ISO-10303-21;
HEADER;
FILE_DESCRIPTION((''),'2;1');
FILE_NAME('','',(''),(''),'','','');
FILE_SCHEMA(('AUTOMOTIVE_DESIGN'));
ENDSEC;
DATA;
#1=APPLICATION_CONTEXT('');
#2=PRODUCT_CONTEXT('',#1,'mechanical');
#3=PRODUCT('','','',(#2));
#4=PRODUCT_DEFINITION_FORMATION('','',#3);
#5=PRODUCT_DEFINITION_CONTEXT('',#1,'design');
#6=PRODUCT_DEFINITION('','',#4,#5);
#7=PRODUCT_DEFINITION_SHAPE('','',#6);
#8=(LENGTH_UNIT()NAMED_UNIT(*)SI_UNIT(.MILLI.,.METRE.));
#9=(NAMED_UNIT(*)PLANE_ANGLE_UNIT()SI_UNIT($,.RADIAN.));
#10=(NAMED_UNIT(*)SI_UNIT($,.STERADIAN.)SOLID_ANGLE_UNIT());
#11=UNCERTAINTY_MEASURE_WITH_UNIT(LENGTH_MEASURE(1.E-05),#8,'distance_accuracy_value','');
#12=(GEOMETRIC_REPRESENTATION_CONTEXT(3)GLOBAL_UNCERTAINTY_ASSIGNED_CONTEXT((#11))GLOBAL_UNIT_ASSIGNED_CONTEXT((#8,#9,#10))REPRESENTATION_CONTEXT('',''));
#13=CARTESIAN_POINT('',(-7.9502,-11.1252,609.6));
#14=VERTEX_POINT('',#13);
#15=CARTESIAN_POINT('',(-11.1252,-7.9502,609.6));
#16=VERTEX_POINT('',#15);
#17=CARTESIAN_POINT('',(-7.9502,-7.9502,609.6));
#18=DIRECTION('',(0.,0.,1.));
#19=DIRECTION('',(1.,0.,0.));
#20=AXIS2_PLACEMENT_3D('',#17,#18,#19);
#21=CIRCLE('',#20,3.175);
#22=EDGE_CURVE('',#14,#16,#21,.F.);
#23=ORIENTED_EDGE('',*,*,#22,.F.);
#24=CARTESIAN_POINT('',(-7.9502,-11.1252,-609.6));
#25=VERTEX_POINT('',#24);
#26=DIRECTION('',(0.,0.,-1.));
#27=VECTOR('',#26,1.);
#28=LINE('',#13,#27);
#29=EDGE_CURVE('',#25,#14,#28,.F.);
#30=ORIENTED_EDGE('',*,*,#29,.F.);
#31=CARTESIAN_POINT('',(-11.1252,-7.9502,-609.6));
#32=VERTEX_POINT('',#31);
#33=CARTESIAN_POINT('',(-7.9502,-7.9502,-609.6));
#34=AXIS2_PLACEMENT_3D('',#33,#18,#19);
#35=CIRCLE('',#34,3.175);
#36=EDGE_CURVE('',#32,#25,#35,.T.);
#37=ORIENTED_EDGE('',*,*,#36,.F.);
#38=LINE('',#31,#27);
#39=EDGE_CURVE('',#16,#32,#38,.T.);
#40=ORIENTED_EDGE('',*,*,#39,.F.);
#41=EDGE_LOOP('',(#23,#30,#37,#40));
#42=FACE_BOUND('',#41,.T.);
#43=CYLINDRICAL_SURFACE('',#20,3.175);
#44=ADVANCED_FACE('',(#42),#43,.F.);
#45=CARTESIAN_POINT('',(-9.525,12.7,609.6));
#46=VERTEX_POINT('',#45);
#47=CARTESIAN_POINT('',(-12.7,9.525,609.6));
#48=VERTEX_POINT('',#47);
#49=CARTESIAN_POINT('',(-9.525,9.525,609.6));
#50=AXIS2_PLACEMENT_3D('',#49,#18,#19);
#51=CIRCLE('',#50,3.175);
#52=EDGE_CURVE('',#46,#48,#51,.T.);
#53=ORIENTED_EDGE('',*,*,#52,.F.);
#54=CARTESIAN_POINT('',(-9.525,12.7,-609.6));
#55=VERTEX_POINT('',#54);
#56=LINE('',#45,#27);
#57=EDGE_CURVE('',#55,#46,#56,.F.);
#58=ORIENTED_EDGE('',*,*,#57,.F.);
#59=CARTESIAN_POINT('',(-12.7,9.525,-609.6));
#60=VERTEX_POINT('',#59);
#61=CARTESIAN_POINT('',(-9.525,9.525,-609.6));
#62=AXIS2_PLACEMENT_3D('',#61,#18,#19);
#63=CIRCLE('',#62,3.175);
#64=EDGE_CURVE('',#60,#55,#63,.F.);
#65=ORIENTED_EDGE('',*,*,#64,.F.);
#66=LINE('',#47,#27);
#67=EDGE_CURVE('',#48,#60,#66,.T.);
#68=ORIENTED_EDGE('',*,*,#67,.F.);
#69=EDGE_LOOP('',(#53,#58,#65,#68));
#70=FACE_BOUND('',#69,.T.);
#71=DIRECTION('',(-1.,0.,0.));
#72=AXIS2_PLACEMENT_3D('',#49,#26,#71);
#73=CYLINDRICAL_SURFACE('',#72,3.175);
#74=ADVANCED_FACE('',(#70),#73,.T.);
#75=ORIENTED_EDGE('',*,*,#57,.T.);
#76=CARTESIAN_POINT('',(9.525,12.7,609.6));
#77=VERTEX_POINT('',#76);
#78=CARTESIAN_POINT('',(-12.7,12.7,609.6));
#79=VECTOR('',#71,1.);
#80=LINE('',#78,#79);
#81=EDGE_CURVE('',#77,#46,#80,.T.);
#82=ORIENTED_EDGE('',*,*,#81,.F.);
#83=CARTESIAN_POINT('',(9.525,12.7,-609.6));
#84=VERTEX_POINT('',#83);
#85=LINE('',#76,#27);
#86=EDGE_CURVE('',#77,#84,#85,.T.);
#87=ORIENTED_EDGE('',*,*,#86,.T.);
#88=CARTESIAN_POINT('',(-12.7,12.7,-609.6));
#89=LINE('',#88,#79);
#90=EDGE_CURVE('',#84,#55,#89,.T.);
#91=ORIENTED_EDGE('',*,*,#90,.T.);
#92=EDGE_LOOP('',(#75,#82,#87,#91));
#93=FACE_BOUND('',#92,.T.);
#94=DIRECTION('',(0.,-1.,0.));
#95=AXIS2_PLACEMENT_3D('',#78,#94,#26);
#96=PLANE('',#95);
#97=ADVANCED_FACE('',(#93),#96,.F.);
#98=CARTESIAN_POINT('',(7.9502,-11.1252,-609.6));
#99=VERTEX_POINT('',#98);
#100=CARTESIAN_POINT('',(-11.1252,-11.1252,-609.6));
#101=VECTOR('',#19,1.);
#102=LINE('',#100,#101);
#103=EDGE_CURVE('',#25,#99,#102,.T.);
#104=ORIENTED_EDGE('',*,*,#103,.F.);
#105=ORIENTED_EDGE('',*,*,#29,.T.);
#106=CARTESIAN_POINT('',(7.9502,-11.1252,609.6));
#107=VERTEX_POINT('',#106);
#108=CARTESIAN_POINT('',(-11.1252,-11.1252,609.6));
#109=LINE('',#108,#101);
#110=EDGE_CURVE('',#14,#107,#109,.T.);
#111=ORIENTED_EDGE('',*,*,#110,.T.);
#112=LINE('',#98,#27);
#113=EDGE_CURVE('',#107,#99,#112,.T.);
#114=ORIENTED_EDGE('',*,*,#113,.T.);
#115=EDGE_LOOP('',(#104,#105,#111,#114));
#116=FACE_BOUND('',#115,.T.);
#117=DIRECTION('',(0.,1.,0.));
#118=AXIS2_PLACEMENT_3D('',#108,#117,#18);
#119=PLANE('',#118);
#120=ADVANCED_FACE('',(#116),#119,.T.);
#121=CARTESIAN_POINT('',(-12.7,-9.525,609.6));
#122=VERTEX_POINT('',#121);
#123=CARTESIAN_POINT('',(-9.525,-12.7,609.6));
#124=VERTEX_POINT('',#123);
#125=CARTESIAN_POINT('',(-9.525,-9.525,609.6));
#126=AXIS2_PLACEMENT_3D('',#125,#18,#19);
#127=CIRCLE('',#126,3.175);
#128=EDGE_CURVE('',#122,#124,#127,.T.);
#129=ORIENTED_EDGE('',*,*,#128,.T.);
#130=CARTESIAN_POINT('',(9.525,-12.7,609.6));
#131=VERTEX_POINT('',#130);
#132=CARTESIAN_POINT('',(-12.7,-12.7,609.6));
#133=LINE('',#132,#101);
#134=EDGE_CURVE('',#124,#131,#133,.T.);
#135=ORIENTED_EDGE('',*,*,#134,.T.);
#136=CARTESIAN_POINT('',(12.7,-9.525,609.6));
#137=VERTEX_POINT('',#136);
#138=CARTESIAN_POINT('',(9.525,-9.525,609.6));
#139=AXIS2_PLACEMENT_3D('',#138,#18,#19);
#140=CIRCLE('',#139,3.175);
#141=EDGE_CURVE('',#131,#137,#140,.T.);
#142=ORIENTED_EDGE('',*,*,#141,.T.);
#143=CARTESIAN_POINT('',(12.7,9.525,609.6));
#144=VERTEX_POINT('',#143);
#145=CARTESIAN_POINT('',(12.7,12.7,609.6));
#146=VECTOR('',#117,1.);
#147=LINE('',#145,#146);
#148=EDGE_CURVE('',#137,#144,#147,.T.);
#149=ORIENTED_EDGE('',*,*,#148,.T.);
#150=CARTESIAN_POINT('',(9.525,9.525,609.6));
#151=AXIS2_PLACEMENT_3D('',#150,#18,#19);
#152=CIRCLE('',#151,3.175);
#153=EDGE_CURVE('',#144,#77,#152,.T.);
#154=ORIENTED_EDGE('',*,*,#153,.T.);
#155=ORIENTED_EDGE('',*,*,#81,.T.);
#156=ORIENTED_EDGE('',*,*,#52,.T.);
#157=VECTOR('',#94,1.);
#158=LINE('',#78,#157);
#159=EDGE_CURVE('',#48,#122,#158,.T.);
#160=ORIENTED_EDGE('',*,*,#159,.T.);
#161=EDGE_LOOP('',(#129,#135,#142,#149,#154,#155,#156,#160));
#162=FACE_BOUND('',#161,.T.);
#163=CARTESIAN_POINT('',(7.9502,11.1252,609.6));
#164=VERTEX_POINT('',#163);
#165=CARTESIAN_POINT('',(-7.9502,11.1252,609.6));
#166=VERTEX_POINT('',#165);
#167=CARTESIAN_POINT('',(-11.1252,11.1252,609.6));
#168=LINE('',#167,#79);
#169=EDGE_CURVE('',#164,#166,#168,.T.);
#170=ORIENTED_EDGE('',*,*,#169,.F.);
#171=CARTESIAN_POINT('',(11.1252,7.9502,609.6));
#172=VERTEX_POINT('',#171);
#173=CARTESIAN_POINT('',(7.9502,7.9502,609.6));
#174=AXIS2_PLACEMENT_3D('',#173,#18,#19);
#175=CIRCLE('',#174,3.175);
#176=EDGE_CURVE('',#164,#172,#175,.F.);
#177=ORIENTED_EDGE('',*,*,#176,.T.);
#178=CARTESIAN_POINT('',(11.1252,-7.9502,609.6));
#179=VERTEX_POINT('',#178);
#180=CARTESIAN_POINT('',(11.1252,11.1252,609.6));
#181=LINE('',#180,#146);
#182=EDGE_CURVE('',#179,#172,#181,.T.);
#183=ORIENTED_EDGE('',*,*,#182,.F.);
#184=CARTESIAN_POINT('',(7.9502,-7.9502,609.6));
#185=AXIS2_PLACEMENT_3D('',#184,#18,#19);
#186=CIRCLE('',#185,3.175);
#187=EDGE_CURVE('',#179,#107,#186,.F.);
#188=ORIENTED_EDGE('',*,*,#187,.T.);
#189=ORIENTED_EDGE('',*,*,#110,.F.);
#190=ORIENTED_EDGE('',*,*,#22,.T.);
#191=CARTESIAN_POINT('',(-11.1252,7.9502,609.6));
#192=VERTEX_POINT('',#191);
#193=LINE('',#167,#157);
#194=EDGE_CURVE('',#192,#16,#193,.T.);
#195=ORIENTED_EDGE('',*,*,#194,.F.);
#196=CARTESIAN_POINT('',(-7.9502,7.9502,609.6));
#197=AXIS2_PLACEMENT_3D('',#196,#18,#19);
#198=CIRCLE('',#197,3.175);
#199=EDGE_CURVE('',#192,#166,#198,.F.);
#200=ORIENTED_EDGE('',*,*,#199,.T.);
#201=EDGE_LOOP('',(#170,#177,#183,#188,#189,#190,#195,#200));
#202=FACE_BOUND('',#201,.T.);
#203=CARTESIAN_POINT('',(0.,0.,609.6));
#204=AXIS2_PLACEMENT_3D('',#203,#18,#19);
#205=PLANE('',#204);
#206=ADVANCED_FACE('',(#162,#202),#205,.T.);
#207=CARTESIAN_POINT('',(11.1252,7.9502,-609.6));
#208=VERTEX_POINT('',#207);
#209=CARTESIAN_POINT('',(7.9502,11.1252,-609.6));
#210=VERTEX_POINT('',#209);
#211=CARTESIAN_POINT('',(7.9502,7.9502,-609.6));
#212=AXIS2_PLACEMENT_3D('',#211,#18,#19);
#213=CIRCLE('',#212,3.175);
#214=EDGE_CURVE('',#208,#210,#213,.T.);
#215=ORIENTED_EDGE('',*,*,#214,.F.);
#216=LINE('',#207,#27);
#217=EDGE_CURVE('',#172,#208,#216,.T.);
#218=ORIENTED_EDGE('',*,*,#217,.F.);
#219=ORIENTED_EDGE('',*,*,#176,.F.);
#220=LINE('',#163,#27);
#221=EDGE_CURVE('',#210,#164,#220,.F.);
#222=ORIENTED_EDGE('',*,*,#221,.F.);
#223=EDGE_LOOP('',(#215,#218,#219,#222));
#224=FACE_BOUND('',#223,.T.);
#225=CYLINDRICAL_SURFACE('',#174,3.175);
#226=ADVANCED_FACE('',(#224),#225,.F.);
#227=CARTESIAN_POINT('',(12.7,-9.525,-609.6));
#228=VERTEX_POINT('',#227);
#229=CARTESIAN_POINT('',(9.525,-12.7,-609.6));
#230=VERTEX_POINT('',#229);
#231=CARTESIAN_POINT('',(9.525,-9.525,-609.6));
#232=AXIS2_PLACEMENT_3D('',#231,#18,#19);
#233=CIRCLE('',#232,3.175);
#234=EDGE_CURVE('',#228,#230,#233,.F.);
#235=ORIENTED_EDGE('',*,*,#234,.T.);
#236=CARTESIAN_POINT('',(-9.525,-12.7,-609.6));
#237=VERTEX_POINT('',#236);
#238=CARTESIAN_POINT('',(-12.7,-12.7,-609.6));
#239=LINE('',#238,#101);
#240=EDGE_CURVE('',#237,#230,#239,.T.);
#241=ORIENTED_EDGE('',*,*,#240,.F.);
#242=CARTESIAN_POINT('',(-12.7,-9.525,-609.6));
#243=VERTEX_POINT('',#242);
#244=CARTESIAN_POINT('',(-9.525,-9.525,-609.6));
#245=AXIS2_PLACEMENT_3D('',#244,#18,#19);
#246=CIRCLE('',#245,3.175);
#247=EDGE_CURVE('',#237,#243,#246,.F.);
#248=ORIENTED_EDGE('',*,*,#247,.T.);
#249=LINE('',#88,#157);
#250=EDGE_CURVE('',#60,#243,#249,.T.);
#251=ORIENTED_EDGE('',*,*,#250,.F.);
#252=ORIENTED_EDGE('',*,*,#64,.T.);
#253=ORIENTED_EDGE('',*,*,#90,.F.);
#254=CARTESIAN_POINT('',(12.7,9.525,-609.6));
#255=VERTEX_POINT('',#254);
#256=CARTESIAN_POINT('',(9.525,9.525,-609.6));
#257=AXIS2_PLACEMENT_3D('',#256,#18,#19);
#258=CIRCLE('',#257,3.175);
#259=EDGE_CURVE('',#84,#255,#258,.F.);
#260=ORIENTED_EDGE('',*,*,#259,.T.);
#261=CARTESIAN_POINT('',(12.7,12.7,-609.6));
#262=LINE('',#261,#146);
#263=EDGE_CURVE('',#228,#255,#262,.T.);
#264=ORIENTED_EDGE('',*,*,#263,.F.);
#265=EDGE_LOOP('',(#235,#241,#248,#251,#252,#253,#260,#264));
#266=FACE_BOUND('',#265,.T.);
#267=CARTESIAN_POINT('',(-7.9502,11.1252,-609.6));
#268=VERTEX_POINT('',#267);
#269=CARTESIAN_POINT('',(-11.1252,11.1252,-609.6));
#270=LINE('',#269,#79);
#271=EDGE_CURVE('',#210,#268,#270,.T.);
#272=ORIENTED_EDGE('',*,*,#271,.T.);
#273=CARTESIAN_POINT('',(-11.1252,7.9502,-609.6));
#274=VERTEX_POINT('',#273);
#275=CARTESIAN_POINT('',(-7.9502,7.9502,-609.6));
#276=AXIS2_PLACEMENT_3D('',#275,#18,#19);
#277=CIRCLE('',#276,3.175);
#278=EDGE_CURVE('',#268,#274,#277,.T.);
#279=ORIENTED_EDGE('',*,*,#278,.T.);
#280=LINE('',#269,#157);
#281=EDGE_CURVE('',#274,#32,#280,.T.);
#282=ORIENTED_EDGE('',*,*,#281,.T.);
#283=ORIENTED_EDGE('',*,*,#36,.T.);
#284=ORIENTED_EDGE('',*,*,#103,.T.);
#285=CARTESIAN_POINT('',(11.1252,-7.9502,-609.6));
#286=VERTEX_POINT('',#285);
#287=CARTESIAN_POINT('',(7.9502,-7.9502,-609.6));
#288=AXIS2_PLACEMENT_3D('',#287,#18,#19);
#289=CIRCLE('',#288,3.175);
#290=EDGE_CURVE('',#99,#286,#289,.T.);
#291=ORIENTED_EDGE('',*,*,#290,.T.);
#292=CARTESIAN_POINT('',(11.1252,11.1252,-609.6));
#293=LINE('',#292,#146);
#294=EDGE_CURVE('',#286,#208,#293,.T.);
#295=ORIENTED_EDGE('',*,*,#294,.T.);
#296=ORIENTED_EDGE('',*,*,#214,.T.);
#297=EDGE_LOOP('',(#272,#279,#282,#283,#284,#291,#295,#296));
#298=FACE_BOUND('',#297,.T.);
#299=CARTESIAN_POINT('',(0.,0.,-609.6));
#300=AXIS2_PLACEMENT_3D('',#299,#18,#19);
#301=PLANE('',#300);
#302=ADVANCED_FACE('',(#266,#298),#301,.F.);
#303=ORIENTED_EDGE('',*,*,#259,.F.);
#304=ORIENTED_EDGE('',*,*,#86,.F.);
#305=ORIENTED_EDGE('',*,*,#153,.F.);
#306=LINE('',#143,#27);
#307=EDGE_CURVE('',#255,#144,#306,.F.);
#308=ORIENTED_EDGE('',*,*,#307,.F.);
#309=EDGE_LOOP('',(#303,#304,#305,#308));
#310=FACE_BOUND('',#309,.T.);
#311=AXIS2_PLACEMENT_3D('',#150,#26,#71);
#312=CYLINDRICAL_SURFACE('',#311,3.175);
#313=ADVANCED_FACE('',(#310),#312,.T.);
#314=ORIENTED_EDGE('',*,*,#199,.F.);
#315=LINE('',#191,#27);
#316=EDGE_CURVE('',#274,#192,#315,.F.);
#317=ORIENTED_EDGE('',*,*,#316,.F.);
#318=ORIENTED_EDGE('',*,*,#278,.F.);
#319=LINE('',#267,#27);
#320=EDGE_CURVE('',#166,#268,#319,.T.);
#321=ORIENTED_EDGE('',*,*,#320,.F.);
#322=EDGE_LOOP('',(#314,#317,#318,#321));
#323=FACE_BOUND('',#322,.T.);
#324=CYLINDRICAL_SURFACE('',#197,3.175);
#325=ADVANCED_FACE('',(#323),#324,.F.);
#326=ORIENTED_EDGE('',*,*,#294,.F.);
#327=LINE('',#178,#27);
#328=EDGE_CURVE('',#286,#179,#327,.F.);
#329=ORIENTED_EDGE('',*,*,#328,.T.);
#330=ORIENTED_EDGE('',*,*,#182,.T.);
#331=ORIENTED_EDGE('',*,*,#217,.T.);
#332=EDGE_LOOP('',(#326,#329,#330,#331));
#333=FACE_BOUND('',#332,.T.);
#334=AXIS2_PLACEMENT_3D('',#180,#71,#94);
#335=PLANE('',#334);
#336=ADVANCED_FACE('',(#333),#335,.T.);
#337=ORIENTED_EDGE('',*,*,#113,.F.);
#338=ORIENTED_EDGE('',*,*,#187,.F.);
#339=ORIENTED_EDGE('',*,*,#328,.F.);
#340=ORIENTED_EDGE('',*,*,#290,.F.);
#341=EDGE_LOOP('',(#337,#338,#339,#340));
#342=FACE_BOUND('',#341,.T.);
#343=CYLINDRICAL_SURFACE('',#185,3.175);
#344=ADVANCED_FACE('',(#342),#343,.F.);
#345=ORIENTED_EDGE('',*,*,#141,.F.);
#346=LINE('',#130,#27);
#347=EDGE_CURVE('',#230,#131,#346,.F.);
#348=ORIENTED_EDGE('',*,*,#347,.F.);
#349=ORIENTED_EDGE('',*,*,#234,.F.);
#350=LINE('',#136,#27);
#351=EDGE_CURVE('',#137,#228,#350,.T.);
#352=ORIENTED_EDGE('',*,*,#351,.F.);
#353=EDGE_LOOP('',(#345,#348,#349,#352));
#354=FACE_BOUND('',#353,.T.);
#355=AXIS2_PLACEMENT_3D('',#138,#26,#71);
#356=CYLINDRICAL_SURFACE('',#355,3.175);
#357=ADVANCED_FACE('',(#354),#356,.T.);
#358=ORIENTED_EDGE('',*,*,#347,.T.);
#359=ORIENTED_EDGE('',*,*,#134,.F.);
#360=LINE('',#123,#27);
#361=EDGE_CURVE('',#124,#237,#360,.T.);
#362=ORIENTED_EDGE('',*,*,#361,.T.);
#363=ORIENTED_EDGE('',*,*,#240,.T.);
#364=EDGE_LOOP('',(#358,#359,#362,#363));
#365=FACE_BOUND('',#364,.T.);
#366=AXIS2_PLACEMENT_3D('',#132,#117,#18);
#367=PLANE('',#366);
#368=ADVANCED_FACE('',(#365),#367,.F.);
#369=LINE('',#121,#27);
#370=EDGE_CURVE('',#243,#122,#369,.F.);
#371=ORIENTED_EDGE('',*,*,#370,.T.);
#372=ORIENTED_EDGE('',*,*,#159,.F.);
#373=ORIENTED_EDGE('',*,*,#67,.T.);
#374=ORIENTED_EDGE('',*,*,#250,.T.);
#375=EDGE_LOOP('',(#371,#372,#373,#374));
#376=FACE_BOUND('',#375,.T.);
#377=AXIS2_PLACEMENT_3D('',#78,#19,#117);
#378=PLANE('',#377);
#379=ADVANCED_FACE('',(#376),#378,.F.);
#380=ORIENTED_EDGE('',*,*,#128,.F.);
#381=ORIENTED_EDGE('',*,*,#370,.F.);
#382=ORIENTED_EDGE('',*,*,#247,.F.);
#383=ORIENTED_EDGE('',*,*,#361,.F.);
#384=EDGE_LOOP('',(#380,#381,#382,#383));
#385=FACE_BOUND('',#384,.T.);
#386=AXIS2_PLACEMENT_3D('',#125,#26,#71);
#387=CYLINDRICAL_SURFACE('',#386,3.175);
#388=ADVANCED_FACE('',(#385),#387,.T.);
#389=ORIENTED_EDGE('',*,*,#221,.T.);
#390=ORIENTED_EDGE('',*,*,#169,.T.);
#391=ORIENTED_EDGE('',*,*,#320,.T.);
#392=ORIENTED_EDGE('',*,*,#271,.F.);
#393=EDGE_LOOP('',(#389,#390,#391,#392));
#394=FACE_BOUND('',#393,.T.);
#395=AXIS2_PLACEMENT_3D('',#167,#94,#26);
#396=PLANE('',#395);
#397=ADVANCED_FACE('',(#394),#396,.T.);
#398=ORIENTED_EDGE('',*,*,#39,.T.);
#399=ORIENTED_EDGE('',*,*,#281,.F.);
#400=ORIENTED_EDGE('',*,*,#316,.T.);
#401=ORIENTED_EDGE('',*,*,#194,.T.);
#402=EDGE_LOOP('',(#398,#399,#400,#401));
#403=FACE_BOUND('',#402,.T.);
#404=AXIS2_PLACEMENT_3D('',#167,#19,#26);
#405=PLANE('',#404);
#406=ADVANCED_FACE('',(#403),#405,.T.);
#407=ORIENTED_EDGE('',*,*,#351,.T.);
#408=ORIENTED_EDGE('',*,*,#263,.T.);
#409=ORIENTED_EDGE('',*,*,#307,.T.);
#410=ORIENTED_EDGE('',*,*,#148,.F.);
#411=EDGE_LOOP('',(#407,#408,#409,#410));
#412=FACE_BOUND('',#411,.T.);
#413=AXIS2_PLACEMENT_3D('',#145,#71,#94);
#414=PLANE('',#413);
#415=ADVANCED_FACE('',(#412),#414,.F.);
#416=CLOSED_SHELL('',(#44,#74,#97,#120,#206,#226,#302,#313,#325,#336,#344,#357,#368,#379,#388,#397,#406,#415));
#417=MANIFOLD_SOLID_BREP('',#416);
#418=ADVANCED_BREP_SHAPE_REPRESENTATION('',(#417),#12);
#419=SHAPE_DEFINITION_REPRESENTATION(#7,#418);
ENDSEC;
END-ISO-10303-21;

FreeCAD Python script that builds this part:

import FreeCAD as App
import Part
import Sketcher

V = App.Vector
Q = App.Units.Quantity


def edges_at(feature, points):
    """Names of the edges that pass closest to the given points."""
    edges = feature.Shape.Edges
    near = lambda p: min(range(len(edges)), key=lambda i: edges[i].distToShape(Part.Vertex(*p))[0])
    return sorted({f"Edge{near(p) + 1}" for p in points})

doc = App.newDocument("Part")
params = doc.addObject("Spreadsheet::Sheet", "Params")
for row, (alias, value) in enumerate([
    ("sketch1_width", "1 in"),
    ("sketch1_width2", "0.876 in"),
    ("pad1_length", "48 in"),
    ("fillet_radius", "0.125 in"),
], start=1):
    params.set(f"A{row}", alias)
    params.set(f"B{row}", "=" + value)
    params.setAlias(f"B{row}", alias)

body = doc.addObject("PartDesign::Body", "Body")

sketch1 = doc.addObject("Sketcher::SketchObject", "Sketch")
body.addObject(sketch1)
sketch1.AttachmentSupport = (doc.XY_Plane, [""])
sketch1.MapMode = "FlatFace"
sketch1.addGeometry([
    Part.LineSegment(V(-12.7, 12.7, 0), V(-12.7, -12.7, 0)),
    Part.LineSegment(V(-12.7, -12.7, 0), V(12.7, -12.7, 0)),
    Part.LineSegment(V(12.7, -12.7, 0), V(12.7, 12.7, 0)),
    Part.LineSegment(V(12.7, 12.7, 0), V(-12.7, 12.7, 0)),
    Part.LineSegment(V(11.1252, -11.1252, 0), V(-11.1252, -11.1252, 0)),
    Part.LineSegment(V(-11.1252, -11.1252, 0), V(-11.1252, 11.1252, 0)),
    Part.LineSegment(V(-11.1252, 11.1252, 0), V(11.1252, 11.1252, 0)),
    Part.LineSegment(V(11.1252, 11.1252, 0), V(11.1252, -11.1252, 0)),
], False)
sketch1.addConstraint([
    Sketcher.Constraint("Coincident", 0, 2, 1, 1),
    Sketcher.Constraint("Coincident", 1, 2, 2, 1),
    Sketcher.Constraint("Coincident", 2, 2, 3, 1),
    Sketcher.Constraint("Coincident", 3, 2, 0, 1),
    Sketcher.Constraint("Coincident", 4, 2, 5, 1),
    Sketcher.Constraint("Coincident", 5, 2, 6, 1),
    Sketcher.Constraint("Coincident", 6, 2, 7, 1),
    Sketcher.Constraint("Coincident", 7, 2, 4, 1),
    Sketcher.Constraint("Vertical", 0),
    Sketcher.Constraint("Horizontal", 1),
    Sketcher.Constraint("Vertical", 2),
    Sketcher.Constraint("Horizontal", 3),
    Sketcher.Constraint("Horizontal", 4),
    Sketcher.Constraint("Vertical", 5),
    Sketcher.Constraint("Horizontal", 6),
    Sketcher.Constraint("Vertical", 7),
    Sketcher.Constraint("Symmetric", 0, 2, 2, 2, -1, 1),
    Sketcher.Constraint("Symmetric", 4, 2, 6, 2, -1, 1),
    Sketcher.Constraint("Equal", 3, 0),
    Sketcher.Constraint("Equal", 6, 5),
    Sketcher.Constraint("DistanceX", 1, 1, 1, 2, Q("1 in")),
    Sketcher.Constraint("DistanceX", 4, 2, 4, 1, Q("0.876 in")),
])
sketch1.setExpression("Constraints[20]", "Params.sketch1_width")
sketch1.setExpression("Constraints[21]", "Params.sketch1_width2")
pad1 = doc.addObject("PartDesign::Pad", "Pad")
body.addObject(pad1)
pad1.Profile = sketch1
pad1.setExpression("Length", "Params.pad1_length")
pad1.Midplane = True
doc.recompute()

fillet = doc.addObject("PartDesign::Fillet", "Fillet")
body.addObject(fillet)
fillet.Base = (pad1, edges_at(pad1, [
    (11.125, -11.125, 0),
    (11.125, 11.125, 0),
    (-11.125, 11.125, 0),
    (-11.125, -11.125, 0),
    (12.7, -12.7, 0),
    (-12.7, -12.7, 0),
    (-12.7, 12.7, 0),
    (12.7, 12.7, 0),
]))
fillet.setExpression("Radius", "Params.fillet_radius")

doc.recompute()
